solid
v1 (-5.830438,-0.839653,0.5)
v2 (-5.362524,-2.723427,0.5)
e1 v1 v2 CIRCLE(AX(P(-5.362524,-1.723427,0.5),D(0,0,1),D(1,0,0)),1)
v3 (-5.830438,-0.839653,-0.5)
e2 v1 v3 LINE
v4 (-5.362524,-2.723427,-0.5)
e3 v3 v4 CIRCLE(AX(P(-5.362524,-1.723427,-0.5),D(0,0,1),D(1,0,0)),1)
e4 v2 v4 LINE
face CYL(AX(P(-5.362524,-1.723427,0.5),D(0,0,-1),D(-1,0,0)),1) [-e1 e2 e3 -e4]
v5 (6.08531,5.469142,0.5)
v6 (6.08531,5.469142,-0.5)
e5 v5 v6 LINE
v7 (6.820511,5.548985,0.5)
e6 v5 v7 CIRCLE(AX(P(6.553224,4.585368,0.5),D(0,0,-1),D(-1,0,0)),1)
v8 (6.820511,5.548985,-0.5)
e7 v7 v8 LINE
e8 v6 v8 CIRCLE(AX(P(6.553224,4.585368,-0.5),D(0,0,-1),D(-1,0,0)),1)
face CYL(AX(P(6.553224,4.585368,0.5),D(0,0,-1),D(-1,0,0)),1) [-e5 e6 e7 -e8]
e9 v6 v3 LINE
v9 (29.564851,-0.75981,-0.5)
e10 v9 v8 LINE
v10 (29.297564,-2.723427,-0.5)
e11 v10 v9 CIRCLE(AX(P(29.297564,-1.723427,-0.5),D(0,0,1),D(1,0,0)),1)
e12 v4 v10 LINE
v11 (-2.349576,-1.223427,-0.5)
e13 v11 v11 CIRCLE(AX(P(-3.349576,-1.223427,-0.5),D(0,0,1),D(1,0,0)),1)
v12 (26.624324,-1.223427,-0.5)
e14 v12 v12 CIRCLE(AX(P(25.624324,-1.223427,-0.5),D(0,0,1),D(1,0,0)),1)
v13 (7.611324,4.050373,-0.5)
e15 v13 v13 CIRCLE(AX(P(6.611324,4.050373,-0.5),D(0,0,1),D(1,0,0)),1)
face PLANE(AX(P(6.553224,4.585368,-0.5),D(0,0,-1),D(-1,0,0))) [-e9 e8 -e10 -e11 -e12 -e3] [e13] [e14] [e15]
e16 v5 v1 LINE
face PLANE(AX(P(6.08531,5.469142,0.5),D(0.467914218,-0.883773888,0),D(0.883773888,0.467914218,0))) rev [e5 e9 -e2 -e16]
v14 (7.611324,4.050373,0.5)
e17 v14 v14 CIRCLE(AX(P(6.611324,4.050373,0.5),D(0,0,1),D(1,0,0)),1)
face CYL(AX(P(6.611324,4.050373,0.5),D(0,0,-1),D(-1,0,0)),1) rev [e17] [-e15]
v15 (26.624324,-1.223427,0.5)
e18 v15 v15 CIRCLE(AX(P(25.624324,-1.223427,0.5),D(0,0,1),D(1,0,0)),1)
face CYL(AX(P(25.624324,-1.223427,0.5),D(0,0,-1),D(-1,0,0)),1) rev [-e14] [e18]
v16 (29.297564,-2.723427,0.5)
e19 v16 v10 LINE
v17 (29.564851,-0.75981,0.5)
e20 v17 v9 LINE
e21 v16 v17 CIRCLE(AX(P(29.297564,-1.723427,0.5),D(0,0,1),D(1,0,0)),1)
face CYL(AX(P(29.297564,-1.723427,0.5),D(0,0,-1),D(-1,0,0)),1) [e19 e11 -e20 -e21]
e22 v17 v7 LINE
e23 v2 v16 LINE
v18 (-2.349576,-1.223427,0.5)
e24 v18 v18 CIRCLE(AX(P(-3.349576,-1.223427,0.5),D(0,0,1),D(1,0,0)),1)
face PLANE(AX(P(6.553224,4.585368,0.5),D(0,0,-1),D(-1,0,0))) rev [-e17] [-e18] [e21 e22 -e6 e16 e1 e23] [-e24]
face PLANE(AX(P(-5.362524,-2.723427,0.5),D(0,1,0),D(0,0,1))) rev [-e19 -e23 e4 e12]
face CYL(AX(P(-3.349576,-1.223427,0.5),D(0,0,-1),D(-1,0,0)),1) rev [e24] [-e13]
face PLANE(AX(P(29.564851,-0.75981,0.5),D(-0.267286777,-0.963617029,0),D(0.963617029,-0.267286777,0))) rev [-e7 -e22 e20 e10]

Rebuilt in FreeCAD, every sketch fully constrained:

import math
import FreeCAD as App
import Part
import Sketcher

V = App.Vector

doc = App.newDocument("Part")
body = doc.addObject("PartDesign::Body", "Body")

# Sketch on XY plane
sketch1 = body.newObject("Sketcher::SketchObject", "Sketch")
sketch1.AttachmentSupport = (doc.getObject("XY_Plane"), [""])
sketch1.MapMode = "FlatFace"
sketch1.addGeometry(Part.LineSegment(V(6.08531, 5.469142, 0), V(-5.830438, -0.839653, 0)), False)
sketch1.addGeometry(Part.ArcOfCircle(Part.Circle(V(-5.362524, -1.723427, 0), V(0, 0, 1), 1), math.radians(117.898989), math.radians(270)), False)
sketch1.addGeometry(Part.LineSegment(V(-5.362524, -2.723427, 0), V(29.297564, -2.723427, 0)), False)
sketch1.addGeometry(Part.ArcOfCircle(Part.Circle(V(29.297564, -1.723427, 0), V(0, 0, 1), 1), math.radians(-90), math.radians(74.497122)), False)
sketch1.addGeometry(Part.LineSegment(V(29.564851, -0.75981, 0), V(6.820511, 5.548985, 0)), False)
sketch1.addGeometry(Part.ArcOfCircle(Part.Circle(V(6.553224, 4.585368, 0), V(0, 0, 1), 1), math.radians(74.497122), math.radians(117.898989)), False)
sketch1.addGeometry(Part.Circle(V(-3.349576, -1.223427, 0), V(0, 0, 1), 1), False)
sketch1.addGeometry(Part.Circle(V(25.624324, -1.223427, 0), V(0, 0, 1), 1), False)
sketch1.addGeometry(Part.Circle(V(6.611324, 4.050373, 0), V(0, 0, 1), 1), False)
sketch1.addConstraint(Sketcher.Constraint("Tangent", 0, 2, 1, 1))
sketch1.addConstraint(Sketcher.Constraint("Tangent", 1, 2, 2, 1))
sketch1.addConstraint(Sketcher.Constraint("Tangent", 2, 2, 3, 1))
sketch1.addConstraint(Sketcher.Constraint("Tangent", 3, 2, 4, 1))
sketch1.addConstraint(Sketcher.Constraint("Tangent", 4, 2, 5, 1))
sketch1.addConstraint(Sketcher.Constraint("Tangent", 5, 2, 0, 1))
sketch1.addConstraint(Sketcher.Constraint("Horizontal", 2))
sketch1.addConstraint(Sketcher.Constraint("Equal", 1, 3))
sketch1.addConstraint(Sketcher.Constraint("Equal", 3, 5))
sketch1.addConstraint(Sketcher.Constraint("Equal", 5, 6))
sketch1.addConstraint(Sketcher.Constraint("Equal", 6, 7))
sketch1.addConstraint(Sketcher.Constraint("Equal", 7, 8))
sketch1.addConstraint(Sketcher.Constraint("Horizontal", 6, 3, 7, 3))
sketch1.addConstraint(Sketcher.Constraint("Diameter", 6, 2.0))
sketch1.addConstraint(Sketcher.Constraint("DistanceY", 1, 3, 6, 3, 0.5))
sketch1.addConstraint(Sketcher.Constraint("DistanceX", 8, 3, 7, 3, 19.013))
sketch1.addConstraint(Sketcher.Constraint("Distance", 0, 13.482801))
sketch1.addConstraint(Sketcher.Constraint("DistanceX", 2, 1, 2, 2, 34.660088))
sketch1.addConstraint(Sketcher.Constraint("DistanceX", 6, 3, 5, 3, 9.902799))
sketch1.addConstraint(Sketcher.Constraint("DistanceX", 5, 3, 7, 3, 19.071101))
sketch1.addConstraint(Sketcher.Constraint("DistanceY", 6, 3, 8, 3, 5.2738))
sketch1.addConstraint(Sketcher.Constraint("DistanceX", 5, 2, 4, 2, 0.735201))
sketch1.addConstraint(Sketcher.Constraint("DistanceX", -1, 1, 3, 2, 29.564851))
sketch1.addConstraint(Sketcher.Constraint("DistanceY", 3, 2, -1, 1, 0.75981))
pad1 = body.newObject("PartDesign::Pad", "Pad")
pad1.Profile = sketch1
pad1.Length = 1
pad1.Midplane = True

doc.recompute()
